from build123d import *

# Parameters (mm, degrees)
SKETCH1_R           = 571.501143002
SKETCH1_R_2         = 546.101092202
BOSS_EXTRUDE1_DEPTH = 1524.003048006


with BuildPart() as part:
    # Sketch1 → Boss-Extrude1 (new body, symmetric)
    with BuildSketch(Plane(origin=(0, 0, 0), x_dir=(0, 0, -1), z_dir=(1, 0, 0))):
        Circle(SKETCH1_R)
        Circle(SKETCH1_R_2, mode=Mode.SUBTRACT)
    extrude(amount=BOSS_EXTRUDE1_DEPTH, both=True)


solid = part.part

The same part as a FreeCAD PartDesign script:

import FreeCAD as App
import Part
import Sketcher
Q = App.Units.Quantity

doc = App.newDocument("Part")
body = doc.addObject("PartDesign::Body", "Body")

# Sketch on YZ plane
sketch1 = body.newObject("Sketcher::SketchObject", "Sketch")
sketch1.AttachmentSupport = (doc.getObject("YZ_Plane"), [""])
sketch1.MapMode = "FlatFace"
sketch1.addGeometry([
    Part.Circle(App.Vector(0, 0, 0), App.Vector(0, 0, 1), 571.501143),
    Part.Circle(App.Vector(0, 0, 0), App.Vector(0, 0, 1), 546.101092),
], False)
sketch1.addConstraint([
    Sketcher.Constraint("Coincident", 0, 3, -1, 1),
    Sketcher.Constraint("Coincident", 1, 3, -1, 1),
    Sketcher.Constraint("Diameter", 0, Q("1143.002286 mm")),
    Sketcher.Constraint("Diameter", 1, Q("1092.202184 mm")),
])
pad1 = body.newObject("PartDesign::Pad", "Pad")
pad1.Profile = sketch1
pad1.Length = 3048.006096
pad1.Midplane = True

doc.recompute()
